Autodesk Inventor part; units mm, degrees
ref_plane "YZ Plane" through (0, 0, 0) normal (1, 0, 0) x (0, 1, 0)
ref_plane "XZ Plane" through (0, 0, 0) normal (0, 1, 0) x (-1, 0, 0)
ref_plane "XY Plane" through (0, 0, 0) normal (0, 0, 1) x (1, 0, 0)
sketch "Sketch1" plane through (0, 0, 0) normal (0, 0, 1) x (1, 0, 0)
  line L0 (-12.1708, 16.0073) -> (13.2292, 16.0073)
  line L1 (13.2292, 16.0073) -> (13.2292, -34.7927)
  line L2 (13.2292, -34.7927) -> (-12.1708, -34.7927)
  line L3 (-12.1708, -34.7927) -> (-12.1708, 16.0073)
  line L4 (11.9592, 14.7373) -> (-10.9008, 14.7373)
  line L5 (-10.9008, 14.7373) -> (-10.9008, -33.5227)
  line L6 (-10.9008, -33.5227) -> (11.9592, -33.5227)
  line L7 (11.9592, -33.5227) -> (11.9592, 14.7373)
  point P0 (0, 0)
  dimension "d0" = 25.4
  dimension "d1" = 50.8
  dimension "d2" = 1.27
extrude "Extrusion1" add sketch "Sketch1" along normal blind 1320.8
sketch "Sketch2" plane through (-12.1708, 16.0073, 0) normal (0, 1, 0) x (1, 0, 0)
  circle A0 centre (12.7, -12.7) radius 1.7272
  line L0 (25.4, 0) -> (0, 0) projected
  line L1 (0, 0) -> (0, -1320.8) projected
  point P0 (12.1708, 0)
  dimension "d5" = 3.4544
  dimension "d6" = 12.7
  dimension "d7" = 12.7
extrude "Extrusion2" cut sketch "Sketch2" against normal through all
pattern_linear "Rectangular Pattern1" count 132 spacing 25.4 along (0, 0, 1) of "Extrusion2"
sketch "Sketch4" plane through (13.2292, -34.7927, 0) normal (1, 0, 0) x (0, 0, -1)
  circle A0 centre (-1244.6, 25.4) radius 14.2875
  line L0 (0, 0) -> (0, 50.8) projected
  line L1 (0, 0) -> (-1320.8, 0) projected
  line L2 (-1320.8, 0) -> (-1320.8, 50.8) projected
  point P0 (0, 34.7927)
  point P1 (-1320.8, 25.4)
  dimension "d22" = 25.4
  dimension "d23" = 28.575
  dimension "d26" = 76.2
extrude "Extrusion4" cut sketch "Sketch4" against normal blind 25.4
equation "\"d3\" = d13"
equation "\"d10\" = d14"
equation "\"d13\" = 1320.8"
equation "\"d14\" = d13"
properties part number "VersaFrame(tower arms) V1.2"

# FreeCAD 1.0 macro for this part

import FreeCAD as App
import Part
import Sketcher
Q = App.Units.Quantity

doc = App.newDocument("Part")
params = doc.addObject("Spreadsheet::Sheet", "Params")
for row, (alias, value) in enumerate([
    ("sketch1_width", "1 in"),
    ("sketch1_height", "2 in"),
    ("pad1_length", "52 in"),
    ("sketch2_diameter", "0.136 in"),
    ("linearpattern_pitch", "1 in"),
    ("sketch3_diameter", "1.125 in"),
    ("pocket2_length", "1 in"),
], start=1):
    params.set(f"A{row}", alias)
    params.set(f"B{row}", "=" + value)
    params.setAlias(f"B{row}", alias)

body = doc.addObject("PartDesign::Body", "Body")

sketch1 = doc.addObject("Sketcher::SketchObject", "Sketch")
body.addObject(sketch1)
sketch1.AttachmentSupport = (doc.XY_Plane, [""])
sketch1.MapMode = "FlatFace"
sketch1.addGeometry([
    Part.LineSegment(App.Vector(13, 16, 0), App.Vector(-12, 16, 0)),
    Part.LineSegment(App.Vector(-12, 16, 0), App.Vector(-12, -35, 0)),
    Part.LineSegment(App.Vector(-12, -35, 0), App.Vector(13, -35, 0)),
    Part.LineSegment(App.Vector(13, -35, 0), App.Vector(13, 16, 0)),
    Part.LineSegment(App.Vector(-11, 15, 0), App.Vector(12, 15, 0)),
    Part.LineSegment(App.Vector(12, 15, 0), App.Vector(12, -34, 0)),
    Part.LineSegment(App.Vector(12, -34, 0), App.Vector(-11, -34, 0)),
    Part.LineSegment(App.Vector(-11, -34, 0), App.Vector(-11, 15, 0)),
], False)
sketch1.addConstraint([
    Sketcher.Constraint("Coincident", 0, 2, 1, 1),
    Sketcher.Constraint("Coincident", 1, 2, 2, 1),
    Sketcher.Constraint("Coincident", 2, 2, 3, 1),
    Sketcher.Constraint("Coincident", 3, 2, 0, 1),
    Sketcher.Constraint("Coincident", 4, 2, 5, 1),
    Sketcher.Constraint("Coincident", 5, 2, 6, 1),
    Sketcher.Constraint("Coincident", 6, 2, 7, 1),
    Sketcher.Constraint("Coincident", 7, 2, 4, 1),
    Sketcher.Constraint("Horizontal", 0),
    Sketcher.Constraint("Vertical", 1),
    Sketcher.Constraint("Horizontal", 2),
    Sketcher.Constraint("Vertical", 3),
    Sketcher.Constraint("Horizontal", 4),
    Sketcher.Constraint("Vertical", 5),
    Sketcher.Constraint("Horizontal", 6),
    Sketcher.Constraint("Vertical", 7),
    Sketcher.Constraint("DistanceX", 0, 2, 0, 1, Q("1 in")),
    Sketcher.Constraint("DistanceY", 1, 2, 1, 1, Q("2 in")),
    Sketcher.Constraint("DistanceX", 4, 2, 3, 2, Q("0.05 in")),
    Sketcher.Constraint("DistanceY", 4, 2, 3, 2, Q("0.05 in")),
    Sketcher.Constraint("DistanceY", 2, 2, 5, 2, Q("0.05 in")),
    Sketcher.Constraint("DistanceX", 1, 2, 6, 2, Q("0.05 in")),
    Sketcher.Constraint("DistanceY", -1, 1, 0, 2, Q("0.6302 in")),
    Sketcher.Constraint("DistanceX", 0, 2, -1, 1, Q("12.1708 mm")),
])
sketch1.setExpression("Constraints[16]", "Params.sketch1_width")
sketch1.setExpression("Constraints[17]", "Params.sketch1_height")
pad1 = doc.addObject("PartDesign::Pad", "Pad")
body.addObject(pad1)
pad1.Profile = sketch1
pad1.setExpression("Length", "Params.pad1_length")

sketch2 = doc.addObject("Sketcher::SketchObject", "Sketch001")
body.addObject(sketch2)
sketch2.AttachmentSupport = (doc.XZ_Plane, [""])
sketch2.MapMode = "FlatFace"
sketch2.AttachmentOffset = App.Placement(App.Vector(0, 0, -0.6302087 * 25.4), App.Rotation())
sketch2.addGeometry(Part.Circle(App.Vector(0.5, 12.7, 0), App.Vector(0, 0, 1), 1.7), False)
sketch2.addConstraint([
    Sketcher.Constraint("Diameter", 0, Q("0.136 in")),
    Sketcher.Constraint("DistanceY", -1, 1, 0, 3, Q("0.5 in")),
    Sketcher.Constraint("DistanceX", -1, 1, 0, 3, Q("0.5292 mm")),
])
sketch2.setExpression("Constraints[0]", "Params.sketch2_diameter")
pocket1 = doc.addObject("PartDesign::Pocket", "Pocket")
body.addObject(pocket1)
pocket1.Profile = sketch2
pocket1.Type = "ThroughAll"
pocket1.Reversed = True
doc.recompute()

linearpattern = doc.addObject("PartDesign::LinearPattern", "LinearPattern")
body.addObject(linearpattern)
linearpattern.Originals = [pocket1]
linearpattern.Direction = (doc.Z_Axis, [""])
linearpattern.Mode = "offset"
linearpattern.setExpression("Offset", "Params.linearpattern_pitch")
linearpattern.Occurrences = 132
body.Tip = linearpattern

sketch3 = doc.addObject("Sketcher::SketchObject", "Sketch002")
body.addObject(sketch3)
sketch3.AttachmentSupport = (doc.YZ_Plane, [""])
sketch3.MapMode = "FlatFace"
sketch3.AttachmentOffset = App.Placement(App.Vector(0, 0, 13.2292), App.Rotation())
sketch3.addGeometry(Part.Circle(App.Vector(-9, 1245, 0), App.Vector(0, 0, 1), 14), False)
sketch3.addConstraint([
    Sketcher.Constraint("Diameter", 0, Q("1.125 in")),
    Sketcher.Constraint("DistanceY", -1, 1, 0, 3, Q("49 in")),
    Sketcher.Constraint("DistanceX", 0, 3, -1, 1, Q("0.3698 in")),
])
sketch3.setExpression("Constraints[0]", "Params.sketch3_diameter")
pocket2 = doc.addObject("PartDesign::Pocket", "Pocket001")
body.addObject(pocket2)
pocket2.Profile = sketch3
pocket2.setExpression("Length", "Params.pocket2_length")

doc.recompute()
